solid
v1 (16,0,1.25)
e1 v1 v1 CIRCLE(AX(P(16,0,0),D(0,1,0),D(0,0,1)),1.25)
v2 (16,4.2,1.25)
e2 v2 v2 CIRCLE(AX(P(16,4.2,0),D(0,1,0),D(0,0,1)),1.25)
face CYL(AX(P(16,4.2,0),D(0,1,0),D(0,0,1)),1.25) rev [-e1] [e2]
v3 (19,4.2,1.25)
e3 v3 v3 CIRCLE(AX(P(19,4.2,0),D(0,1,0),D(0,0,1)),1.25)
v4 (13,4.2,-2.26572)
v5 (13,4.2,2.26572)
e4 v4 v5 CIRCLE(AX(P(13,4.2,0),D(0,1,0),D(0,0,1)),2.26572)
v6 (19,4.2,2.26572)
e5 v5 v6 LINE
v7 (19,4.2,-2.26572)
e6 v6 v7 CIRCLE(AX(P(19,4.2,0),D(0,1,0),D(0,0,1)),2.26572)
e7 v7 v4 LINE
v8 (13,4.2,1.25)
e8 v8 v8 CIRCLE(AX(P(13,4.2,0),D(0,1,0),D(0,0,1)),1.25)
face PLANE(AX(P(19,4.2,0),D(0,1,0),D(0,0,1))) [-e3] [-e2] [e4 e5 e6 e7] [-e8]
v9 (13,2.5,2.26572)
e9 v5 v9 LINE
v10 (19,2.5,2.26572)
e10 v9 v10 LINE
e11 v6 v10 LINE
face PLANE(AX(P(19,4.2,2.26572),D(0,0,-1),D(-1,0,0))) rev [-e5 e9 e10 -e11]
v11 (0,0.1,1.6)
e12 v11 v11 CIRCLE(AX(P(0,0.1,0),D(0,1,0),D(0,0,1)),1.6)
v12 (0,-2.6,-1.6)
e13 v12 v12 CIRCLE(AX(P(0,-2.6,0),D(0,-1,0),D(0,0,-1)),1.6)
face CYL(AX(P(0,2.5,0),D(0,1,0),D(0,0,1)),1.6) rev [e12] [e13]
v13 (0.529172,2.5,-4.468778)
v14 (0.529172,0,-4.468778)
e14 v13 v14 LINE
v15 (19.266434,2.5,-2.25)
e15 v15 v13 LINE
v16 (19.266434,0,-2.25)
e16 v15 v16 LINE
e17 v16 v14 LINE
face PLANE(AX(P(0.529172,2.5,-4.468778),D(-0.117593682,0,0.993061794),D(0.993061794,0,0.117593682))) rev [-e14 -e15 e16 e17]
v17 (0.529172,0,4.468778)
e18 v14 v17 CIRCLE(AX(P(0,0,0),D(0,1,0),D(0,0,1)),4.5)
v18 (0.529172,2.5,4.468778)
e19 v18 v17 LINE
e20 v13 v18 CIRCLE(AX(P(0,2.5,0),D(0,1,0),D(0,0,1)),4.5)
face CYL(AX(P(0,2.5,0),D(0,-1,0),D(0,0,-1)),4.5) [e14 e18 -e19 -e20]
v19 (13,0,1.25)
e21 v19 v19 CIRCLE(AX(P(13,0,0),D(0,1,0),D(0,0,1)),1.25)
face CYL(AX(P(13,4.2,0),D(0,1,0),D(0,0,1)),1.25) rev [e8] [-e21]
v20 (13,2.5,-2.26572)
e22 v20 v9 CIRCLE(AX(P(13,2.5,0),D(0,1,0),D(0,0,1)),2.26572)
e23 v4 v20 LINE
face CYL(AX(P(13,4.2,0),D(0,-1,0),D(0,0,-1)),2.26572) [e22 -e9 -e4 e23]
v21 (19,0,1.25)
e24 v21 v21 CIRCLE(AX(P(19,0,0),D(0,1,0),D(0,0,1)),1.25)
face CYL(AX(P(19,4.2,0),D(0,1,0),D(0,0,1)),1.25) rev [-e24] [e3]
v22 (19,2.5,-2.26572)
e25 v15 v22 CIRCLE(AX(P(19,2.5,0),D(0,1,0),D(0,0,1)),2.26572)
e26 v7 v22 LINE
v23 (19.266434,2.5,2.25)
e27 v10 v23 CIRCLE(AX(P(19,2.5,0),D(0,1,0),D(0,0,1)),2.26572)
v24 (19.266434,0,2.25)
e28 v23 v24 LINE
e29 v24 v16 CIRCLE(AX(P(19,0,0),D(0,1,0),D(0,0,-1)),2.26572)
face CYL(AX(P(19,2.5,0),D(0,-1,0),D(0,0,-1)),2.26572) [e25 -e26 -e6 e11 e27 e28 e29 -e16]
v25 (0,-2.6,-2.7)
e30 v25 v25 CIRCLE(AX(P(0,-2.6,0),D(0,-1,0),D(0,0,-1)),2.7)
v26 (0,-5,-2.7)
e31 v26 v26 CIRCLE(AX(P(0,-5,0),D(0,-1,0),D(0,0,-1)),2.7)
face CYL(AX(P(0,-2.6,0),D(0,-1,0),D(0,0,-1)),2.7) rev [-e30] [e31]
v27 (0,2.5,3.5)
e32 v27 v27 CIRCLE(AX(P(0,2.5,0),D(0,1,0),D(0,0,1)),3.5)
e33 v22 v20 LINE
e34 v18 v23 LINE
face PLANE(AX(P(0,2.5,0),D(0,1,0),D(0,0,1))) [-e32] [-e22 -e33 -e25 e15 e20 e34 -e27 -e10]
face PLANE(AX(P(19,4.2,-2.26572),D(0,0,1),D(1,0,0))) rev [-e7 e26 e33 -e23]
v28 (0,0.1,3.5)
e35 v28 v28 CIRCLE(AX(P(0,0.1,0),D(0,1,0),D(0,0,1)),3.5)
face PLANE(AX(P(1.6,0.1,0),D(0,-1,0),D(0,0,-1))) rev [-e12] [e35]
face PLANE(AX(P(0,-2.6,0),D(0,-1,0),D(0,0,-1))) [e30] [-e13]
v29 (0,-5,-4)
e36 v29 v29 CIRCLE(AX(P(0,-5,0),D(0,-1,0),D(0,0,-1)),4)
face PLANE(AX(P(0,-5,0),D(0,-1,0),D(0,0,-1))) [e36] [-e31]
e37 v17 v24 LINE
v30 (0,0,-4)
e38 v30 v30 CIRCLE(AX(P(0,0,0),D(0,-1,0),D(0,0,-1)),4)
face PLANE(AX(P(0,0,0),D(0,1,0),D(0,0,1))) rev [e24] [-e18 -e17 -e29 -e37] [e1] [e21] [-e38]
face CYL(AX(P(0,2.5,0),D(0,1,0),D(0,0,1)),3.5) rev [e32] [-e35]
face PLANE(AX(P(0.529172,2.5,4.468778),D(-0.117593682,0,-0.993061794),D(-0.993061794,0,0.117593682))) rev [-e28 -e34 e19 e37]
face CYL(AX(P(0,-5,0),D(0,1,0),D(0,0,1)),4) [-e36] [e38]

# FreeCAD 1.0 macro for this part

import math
import FreeCAD as App
import Part
import Sketcher

V = App.Vector
Q = App.Units.Quantity

doc = App.newDocument("Part")
body = doc.addObject("PartDesign::Body", "Body")

# Sketch on XZ plane
sketch1 = body.newObject("Sketcher::SketchObject", "Sketch")
sketch1.AttachmentSupport = (doc.getObject("XZ_Plane"), [""])
sketch1.MapMode = "FlatFace"
sketch1.addGeometry([
    Part.LineSegment(V(19.3, -2.2, 0), V(0.5, -4.5, 0)),
    Part.ArcOfCircle(Part.Circle(V(0, 0, 0), V(0, 0, 1), 4.5), math.radians(83), math.radians(277)),
    Part.LineSegment(V(0.5, 4.5, 0), V(19.3, 2.2, 0)),
    Part.ArcOfCircle(Part.Circle(V(19, 0, 0), V(0, 0, 1), 2.3), math.radians(-83), math.radians(83)),
], False)
sketch1.addConstraint([
    Sketcher.Constraint("Tangent", 0, 2, 1, 2),
    Sketcher.Constraint("Tangent", 1, 1, 2, 1),
    Sketcher.Constraint("Tangent", 2, 2, 3, 2),
    Sketcher.Constraint("Tangent", 3, 1, 0, 1),
    Sketcher.Constraint("Coincident", 1, 3, -1, 1),
    Sketcher.Constraint("PointOnObject", 3, 3, -1),
    Sketcher.Constraint("Radius", 1, Q("4.5 mm")),
    Sketcher.Constraint("DistanceX", -1, 1, 3, 3, Q("19 mm")),
    Sketcher.Constraint("DistanceY", 3, 1, 2, 2, Q("4.5 mm")),
])
pad1 = body.newObject("PartDesign::Pad", "Pad")
pad1.Profile = sketch1
pad1.Length = 2.5
pad1.Reversed = True

# Sketch on XZ plane
sketch2 = body.newObject("Sketcher::SketchObject", "Sketch001")
sketch2.AttachmentSupport = (doc.getObject("XZ_Plane"), [""])
sketch2.MapMode = "FlatFace"
sketch2.addGeometry(Part.Circle(V(0, 0, 0), V(0, 0, 1), 4), False)
sketch2.addConstraint([
    Sketcher.Constraint("Coincident", 0, 3, -1, 1),
    Sketcher.Constraint("Diameter", 0, Q("8 mm")),
])
pad2 = body.newObject("PartDesign::Pad", "Pad001")
pad2.Profile = sketch2
pad2.Length = 5

# Sketch on XZ plane
sketch3 = body.newObject("Sketcher::SketchObject", "Sketch002")
sketch3.AttachmentSupport = (doc.getObject("XZ_Plane"), [""])
sketch3.MapMode = "FlatFace"
sketch3.AttachmentOffset = App.Placement(V(0, 0, 5), App.Rotation())
sketch3.addGeometry(Part.Circle(V(0, 0, 0), V(0, 0, 1), 2.7), False)
sketch3.addConstraint([
    Sketcher.Constraint("Coincident", 0, 3, -1, 1),
    Sketcher.Constraint("Diameter", 0, Q("5.4 mm")),
])
pocket1 = body.newObject("PartDesign::Pocket", "Pocket")
pocket1.Profile = sketch3
pocket1.Length = 2.4

# Sketch on XZ plane
sketch4 = body.newObject("Sketcher::SketchObject", "Sketch003")
sketch4.AttachmentSupport = (doc.getObject("XZ_Plane"), [""])
sketch4.MapMode = "FlatFace"
sketch4.AttachmentOffset = App.Placement(V(0, 0, -2.5), App.Rotation())
sketch4.addGeometry(Part.Circle(V(0, 0, 0), V(0, 0, 1), 1.6), False)
sketch4.addConstraint([
    Sketcher.Constraint("Coincident", 0, 3, -1, 1),
    Sketcher.Constraint("Diameter", 0, Q("3.2 mm")),
])
doc.recompute()
hole = body.newObject("PartDesign::Hole", "Hole")
hole.Profile = sketch4
hole.ThreadType = "None"
hole.Diameter = 3.2
hole.DepthType = "ThroughAll"
hole.HoleCutType = "Counterbore"
hole.HoleCutDiameter = 7
hole.HoleCutDepth = 2.4
hole.Reversed = True

# Sketch on XZ plane
sketch5 = body.newObject("Sketcher::SketchObject", "Sketch004")
sketch5.AttachmentSupport = (doc.getObject("XZ_Plane"), [""])
sketch5.MapMode = "FlatFace"
sketch5.AttachmentOffset = App.Placement(V(0, 0, -2.5), App.Rotation())
sketch5.addGeometry([
    Part.LineSegment(V(13, 2.3, 0), V(19, 2.3, 0)),
    Part.ArcOfCircle(Part.Circle(V(19, 0, 0), V(0, 0, 1), 2.3), math.radians(-90), math.radians(90)),
    Part.LineSegment(V(19, -2.3, 0), V(13, -2.3, 0)),
    Part.ArcOfCircle(Part.Circle(V(13, 0, 0), V(0, 0, 1), 2.3), math.radians(90), math.radians(270)),
], False)
sketch5.addConstraint([
    Sketcher.Constraint("Tangent", 0, 2, 1, 2),
    Sketcher.Constraint("Tangent", 1, 1, 2, 1),
    Sketcher.Constraint("Tangent", 2, 2, 3, 2),
    Sketcher.Constraint("Tangent", 3, 1, 0, 1),
    Sketcher.Constraint("Horizontal", 0),
    Sketcher.Constraint("Horizontal", 2),
    Sketcher.Constraint("PointOnObject", 1, 3, -1),
    Sketcher.Constraint("DistanceX", 0, 1, 0, 2, Q("6 mm")),
    Sketcher.Constraint("DistanceX", -1, 1, 1, 3, Q("19 mm")),
    Sketcher.Constraint("Radius", 1, Q("2.26572 mm")),
])
pad3 = body.newObject("PartDesign::Pad", "Pad002")
pad3.Profile = sketch5
pad3.Length = 1.7
pad3.Reversed = True

# Sketch on XZ plane
sketch6 = body.newObject("Sketcher::SketchObject", "Sketch005")
sketch6.AttachmentSupport = (doc.getObject("XZ_Plane"), [""])
sketch6.MapMode = "FlatFace"
sketch6.AttachmentOffset = App.Placement(V(0, 0, -4.2), App.Rotation())
sketch6.addGeometry([
    Part.Circle(V(13, 0, 0), V(0, 0, 1), 1.2),
    Part.Circle(V(16, 0, 0), V(0, 0, 1), 1.2),
    Part.Circle(V(19, 0, 0), V(0, 0, 1), 1.2),
], False)
sketch6.addConstraint([
    Sketcher.Constraint("Equal", 0, 1),
    Sketcher.Constraint("Equal", 1, 2),
    Sketcher.Constraint("PointOnObject", 0, 3, -1),
    Sketcher.Constraint("PointOnObject", 1, 3, -1),
    Sketcher.Constraint("PointOnObject", 2, 3, -1),
    Sketcher.Constraint("Diameter", 0, Q("2.5 mm")),
    Sketcher.Constraint("DistanceX", -1, 1, 0, 3, Q("13 mm")),
    Sketcher.Constraint("DistanceX", -1, 1, 1, 3, Q("16 mm")),
    Sketcher.Constraint("DistanceX", -1, 1, 2, 3, Q("19 mm")),
])
doc.recompute()
hole2 = body.newObject("PartDesign::Hole", "Hole001")
hole2.Profile = sketch6
hole2.ThreadType = "None"
hole2.Diameter = 2.5
hole2.DepthType = "ThroughAll"
hole2.Reversed = True

doc.recompute()
